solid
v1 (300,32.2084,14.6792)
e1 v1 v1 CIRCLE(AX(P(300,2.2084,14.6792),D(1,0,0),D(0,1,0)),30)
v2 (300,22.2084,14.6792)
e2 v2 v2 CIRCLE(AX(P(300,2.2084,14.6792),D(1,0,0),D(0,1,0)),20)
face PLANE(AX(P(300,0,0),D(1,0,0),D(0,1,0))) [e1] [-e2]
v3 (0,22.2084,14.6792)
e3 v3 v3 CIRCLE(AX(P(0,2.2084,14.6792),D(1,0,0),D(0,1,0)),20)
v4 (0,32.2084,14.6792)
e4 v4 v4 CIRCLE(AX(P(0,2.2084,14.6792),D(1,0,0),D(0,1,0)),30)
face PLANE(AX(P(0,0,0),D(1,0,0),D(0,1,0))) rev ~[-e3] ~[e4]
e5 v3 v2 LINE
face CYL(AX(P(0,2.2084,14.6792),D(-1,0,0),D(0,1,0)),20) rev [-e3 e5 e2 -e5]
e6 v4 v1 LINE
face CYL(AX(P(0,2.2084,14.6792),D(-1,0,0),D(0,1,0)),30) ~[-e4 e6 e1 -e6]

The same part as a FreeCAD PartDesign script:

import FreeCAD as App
import Part
import Sketcher

V = App.Vector

doc = App.newDocument("Part")
body = doc.addObject("PartDesign::Body", "Body")

# Sketch on YZ plane
sketch1 = doc.addObject("Sketcher::SketchObject", "Sketch")
body.addObject(sketch1)
sketch1.AttachmentSupport = (doc.YZ_Plane, [""])
sketch1.MapMode = "FlatFace"
sketch1.addGeometry(Part.Circle(V(2.2084, 14.6792, 0), V(0, 0, 1), 30), False)
sketch1.addConstraint([
    Sketcher.Constraint("Diameter", 0, 60.0),
    Sketcher.Constraint("DistanceX", -1, 1, 0, 3, 2.2084),
    Sketcher.Constraint("DistanceY", -1, 1, 0, 3, 14.6792),
])
pad1 = doc.addObject("PartDesign::Pad", "Pad")
body.addObject(pad1)
pad1.Profile = sketch1
pad1.Length = 300

# Sketch on YZ plane
sketch2 = doc.addObject("Sketcher::SketchObject", "Sketch001")
body.addObject(sketch2)
sketch2.AttachmentSupport = (doc.YZ_Plane, [""])
sketch2.MapMode = "FlatFace"
sketch2.addGeometry(Part.Circle(V(2.2084, 14.6792, 0), V(0, 0, 1), 20), False)
sketch2.addConstraint([
    Sketcher.Constraint("Diameter", 0, 40.0),
    Sketcher.Constraint("DistanceX", -1, 1, 0, 3, 2.2084),
    Sketcher.Constraint("DistanceY", -1, 1, 0, 3, 14.6792),
])
pocket1 = doc.addObject("PartDesign::Pocket", "Pocket")
body.addObject(pocket1)
pocket1.Profile = sketch2
pocket1.Length = 300
pocket1.Reversed = True

doc.recompute()
